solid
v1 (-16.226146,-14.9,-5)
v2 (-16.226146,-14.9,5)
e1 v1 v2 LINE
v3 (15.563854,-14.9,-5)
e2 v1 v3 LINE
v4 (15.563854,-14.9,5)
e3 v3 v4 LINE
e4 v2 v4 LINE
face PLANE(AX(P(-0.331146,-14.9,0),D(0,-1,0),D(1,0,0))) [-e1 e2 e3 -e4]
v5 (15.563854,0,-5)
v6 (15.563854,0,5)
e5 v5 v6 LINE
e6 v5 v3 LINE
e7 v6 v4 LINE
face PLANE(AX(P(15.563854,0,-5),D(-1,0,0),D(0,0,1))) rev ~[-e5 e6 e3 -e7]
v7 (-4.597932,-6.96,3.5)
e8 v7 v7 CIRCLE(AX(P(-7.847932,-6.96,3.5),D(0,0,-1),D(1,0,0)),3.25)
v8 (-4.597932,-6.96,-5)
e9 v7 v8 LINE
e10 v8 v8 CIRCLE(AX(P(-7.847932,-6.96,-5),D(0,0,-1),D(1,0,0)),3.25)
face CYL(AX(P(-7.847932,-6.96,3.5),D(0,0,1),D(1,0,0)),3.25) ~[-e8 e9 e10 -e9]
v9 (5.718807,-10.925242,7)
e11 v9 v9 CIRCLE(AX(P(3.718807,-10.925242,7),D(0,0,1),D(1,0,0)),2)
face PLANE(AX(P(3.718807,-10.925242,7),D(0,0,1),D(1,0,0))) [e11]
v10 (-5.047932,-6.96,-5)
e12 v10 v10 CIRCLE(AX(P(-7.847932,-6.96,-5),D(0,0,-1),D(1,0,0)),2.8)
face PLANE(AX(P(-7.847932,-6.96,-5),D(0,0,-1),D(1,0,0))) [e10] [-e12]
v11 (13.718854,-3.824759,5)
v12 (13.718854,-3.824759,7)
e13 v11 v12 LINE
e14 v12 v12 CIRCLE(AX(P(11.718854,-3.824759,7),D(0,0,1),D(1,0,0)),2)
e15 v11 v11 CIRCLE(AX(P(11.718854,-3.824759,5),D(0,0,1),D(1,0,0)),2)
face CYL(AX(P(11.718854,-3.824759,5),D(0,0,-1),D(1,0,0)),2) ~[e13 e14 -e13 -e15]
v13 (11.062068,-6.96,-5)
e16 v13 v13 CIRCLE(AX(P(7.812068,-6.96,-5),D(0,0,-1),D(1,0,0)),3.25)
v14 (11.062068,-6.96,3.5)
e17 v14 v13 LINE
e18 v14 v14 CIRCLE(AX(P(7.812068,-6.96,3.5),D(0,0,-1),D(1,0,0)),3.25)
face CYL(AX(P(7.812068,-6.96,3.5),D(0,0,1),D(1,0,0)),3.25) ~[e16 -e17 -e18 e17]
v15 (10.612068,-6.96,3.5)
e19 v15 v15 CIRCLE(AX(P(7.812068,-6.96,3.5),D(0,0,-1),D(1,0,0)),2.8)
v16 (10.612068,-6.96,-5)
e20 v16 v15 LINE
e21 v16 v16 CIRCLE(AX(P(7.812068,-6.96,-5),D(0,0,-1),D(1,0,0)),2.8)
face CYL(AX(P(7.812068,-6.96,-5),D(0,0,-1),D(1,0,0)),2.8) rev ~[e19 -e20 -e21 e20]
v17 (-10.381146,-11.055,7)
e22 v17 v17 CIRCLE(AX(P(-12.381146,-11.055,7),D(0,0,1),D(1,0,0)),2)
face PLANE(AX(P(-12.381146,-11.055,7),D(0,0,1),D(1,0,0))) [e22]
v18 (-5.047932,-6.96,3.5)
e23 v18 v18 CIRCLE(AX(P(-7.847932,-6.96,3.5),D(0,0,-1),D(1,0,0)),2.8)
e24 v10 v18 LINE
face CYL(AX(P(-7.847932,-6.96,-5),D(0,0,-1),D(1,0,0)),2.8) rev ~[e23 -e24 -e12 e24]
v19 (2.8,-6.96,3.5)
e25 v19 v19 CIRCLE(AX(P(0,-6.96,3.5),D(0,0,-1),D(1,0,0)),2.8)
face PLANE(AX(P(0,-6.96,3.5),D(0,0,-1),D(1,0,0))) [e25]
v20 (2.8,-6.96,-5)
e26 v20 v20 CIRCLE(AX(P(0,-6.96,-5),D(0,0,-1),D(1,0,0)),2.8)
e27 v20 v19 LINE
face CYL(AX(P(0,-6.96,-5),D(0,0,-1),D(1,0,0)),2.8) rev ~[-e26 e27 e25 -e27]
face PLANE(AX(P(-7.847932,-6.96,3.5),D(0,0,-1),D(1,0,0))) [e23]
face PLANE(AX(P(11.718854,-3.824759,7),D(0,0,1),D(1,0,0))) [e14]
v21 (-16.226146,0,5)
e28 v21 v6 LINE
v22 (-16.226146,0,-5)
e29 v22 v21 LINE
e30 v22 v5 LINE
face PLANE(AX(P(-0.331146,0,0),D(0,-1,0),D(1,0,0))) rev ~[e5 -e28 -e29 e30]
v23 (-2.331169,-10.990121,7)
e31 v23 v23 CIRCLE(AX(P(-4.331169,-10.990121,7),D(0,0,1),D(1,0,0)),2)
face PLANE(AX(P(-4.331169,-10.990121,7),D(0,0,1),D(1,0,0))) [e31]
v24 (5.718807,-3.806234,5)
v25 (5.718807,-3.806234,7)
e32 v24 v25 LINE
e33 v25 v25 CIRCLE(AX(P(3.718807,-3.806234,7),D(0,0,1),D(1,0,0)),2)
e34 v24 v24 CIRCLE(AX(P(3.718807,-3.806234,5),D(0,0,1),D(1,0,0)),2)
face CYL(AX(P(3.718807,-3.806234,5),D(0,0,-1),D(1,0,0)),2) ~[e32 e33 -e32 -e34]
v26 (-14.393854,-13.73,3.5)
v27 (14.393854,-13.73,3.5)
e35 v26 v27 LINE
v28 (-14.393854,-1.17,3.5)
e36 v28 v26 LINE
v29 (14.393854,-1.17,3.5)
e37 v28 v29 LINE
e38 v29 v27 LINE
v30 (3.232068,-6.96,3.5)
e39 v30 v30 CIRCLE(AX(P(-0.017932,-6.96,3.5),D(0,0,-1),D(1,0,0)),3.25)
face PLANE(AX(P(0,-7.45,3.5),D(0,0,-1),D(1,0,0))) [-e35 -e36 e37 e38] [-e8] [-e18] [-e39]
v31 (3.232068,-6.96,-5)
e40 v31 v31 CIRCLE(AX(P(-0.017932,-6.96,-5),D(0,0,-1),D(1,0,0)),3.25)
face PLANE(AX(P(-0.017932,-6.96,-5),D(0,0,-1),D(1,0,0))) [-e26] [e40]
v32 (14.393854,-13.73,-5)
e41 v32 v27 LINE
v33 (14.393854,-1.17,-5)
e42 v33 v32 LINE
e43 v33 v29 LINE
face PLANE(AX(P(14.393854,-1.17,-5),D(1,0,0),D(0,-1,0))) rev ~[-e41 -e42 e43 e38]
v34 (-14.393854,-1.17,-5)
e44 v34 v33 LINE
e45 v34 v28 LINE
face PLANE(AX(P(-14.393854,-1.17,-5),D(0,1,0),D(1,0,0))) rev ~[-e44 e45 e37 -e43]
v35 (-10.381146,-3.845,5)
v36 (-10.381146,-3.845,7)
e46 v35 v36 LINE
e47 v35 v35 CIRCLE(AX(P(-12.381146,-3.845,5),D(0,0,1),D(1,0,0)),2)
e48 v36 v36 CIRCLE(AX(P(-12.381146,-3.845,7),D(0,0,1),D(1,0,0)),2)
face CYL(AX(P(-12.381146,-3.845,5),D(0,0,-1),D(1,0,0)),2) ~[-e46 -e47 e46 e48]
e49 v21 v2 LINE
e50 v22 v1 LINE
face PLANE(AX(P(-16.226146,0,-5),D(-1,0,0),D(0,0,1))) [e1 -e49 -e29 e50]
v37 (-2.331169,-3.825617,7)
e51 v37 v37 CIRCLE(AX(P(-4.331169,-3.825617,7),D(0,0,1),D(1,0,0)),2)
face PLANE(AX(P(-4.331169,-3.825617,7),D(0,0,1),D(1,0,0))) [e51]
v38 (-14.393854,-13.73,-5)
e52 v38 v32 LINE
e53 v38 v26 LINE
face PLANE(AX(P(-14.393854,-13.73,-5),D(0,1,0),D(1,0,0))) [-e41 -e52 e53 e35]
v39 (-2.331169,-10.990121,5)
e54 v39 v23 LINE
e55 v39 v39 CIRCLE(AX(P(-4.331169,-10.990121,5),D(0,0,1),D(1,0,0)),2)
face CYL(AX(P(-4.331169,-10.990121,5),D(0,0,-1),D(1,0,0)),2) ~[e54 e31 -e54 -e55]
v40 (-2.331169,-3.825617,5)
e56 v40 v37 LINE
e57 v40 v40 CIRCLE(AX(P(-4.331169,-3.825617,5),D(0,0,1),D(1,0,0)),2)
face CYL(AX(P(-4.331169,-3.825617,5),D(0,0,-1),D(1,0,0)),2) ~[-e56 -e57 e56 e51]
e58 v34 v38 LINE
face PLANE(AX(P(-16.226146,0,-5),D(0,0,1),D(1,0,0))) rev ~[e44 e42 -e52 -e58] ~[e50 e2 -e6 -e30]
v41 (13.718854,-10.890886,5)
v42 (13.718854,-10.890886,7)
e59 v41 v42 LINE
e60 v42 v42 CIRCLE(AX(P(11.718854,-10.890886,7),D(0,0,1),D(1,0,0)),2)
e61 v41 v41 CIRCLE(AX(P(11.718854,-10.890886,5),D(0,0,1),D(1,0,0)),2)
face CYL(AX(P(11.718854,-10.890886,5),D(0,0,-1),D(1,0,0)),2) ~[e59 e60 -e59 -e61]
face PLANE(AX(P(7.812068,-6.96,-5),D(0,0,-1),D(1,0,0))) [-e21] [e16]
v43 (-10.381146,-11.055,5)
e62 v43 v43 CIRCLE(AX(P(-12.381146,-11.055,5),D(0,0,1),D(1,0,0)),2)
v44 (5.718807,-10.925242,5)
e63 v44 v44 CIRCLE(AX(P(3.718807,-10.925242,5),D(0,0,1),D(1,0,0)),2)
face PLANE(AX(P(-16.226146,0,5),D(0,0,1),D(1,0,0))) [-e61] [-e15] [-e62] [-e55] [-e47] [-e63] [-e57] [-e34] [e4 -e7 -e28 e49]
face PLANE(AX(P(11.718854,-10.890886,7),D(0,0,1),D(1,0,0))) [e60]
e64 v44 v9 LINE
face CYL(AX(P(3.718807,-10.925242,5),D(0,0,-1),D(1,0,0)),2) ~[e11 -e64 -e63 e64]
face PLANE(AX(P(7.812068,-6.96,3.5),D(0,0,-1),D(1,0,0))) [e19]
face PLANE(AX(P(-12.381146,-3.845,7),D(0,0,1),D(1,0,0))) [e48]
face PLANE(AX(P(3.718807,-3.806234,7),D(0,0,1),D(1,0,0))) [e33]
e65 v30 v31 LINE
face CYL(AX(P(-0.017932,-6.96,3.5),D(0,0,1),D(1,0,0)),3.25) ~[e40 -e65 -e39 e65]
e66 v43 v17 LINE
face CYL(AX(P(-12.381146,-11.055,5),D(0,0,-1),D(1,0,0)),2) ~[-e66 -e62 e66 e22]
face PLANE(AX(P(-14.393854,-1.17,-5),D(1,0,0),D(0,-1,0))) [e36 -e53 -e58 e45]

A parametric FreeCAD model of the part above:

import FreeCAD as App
import Part
import Sketcher
from FreeCAD import Vector


def add_polygon(sketch, points):
    """Adds a closed chain of lines whose ends are joined by coincident constraints."""
    first, n = sketch.GeometryCount, len(points)
    for a, b in zip(points, points[1:] + points[:1]):
        sketch.addGeometry(Part.LineSegment(App.Vector(*a, 0), App.Vector(*b, 0)), False)
    for i in range(n):
        sketch.addConstraint(Sketcher.Constraint("Coincident", first + i, 2, first + (i + 1) % n, 1))

doc = App.newDocument("Part")
params = doc.addObject("Spreadsheet::Sheet", "Params")
for row, (alias, value) in enumerate([
    ("sketch1_height", "10 mm"),
    ("sketch1_width", "31.79 mm"),
    ("pad1_length", "14.9 mm"),
    ("sketch2_height", "12.56 mm"),
    ("pocket1_length", "8.5 mm"),
    ("sketch3_diameter", "4 mm"),
    ("pad2_length", "2 mm"),
    ("sketch4_diameter", "6.5 mm"),
    ("pad3_length", "8.5 mm"),
    ("sketch5_diameter", "5.6 mm"),
    ("pocket2_length", "8.5 mm"),
], start=1):
    params.set(f"A{row}", alias)
    params.set(f"B{row}", "=" + value)
    params.setAlias(f"B{row}", alias)

body = doc.addObject("PartDesign::Body", "Body")

sketch1 = body.newObject("Sketcher::SketchObject", "Sketch")
sketch1.AttachmentSupport = (doc.getObject("XZ_Plane"), [""])
sketch1.MapMode = "FlatFace"
add_polygon(sketch1, [(-16, 5), (-16, -5), (16, -5), (16, 5)])
sketch1.addConstraint(Sketcher.Constraint("Vertical", 0))
sketch1.addConstraint(Sketcher.Constraint("Horizontal", 1))
sketch1.addConstraint(Sketcher.Constraint("Vertical", 2))
sketch1.addConstraint(Sketcher.Constraint("Horizontal", 3))
sketch1.addConstraint(Sketcher.Constraint("DistanceY", 0, 2, 0, 1, 10.0))
sketch1.addConstraint(Sketcher.Constraint("DistanceY", 0, 2, -1, 1, 5.0))
sketch1.addConstraint(Sketcher.Constraint("DistanceX", 1, 1, 1, 2, 31.79))
sketch1.addConstraint(Sketcher.Constraint("DistanceX", 0, 2, -1, 1, 16.226146))
sketch1.setExpression("Constraints[8]", "Params.sketch1_height")
sketch1.setExpression("Constraints[10]", "Params.sketch1_width")
pad1 = body.newObject("PartDesign::Pad", "Pad")
pad1.Profile = sketch1
pad1.setExpression("Length", "Params.pad1_length")

sketch2 = body.newObject("Sketcher::SketchObject", "Sketch001")
sketch2.AttachmentSupport = (doc.getObject("XY_Plane"), [""])
sketch2.MapMode = "FlatFace"
sketch2.AttachmentOffset = App.Placement(Vector(0, 0, -5), App.Rotation())
add_polygon(sketch2, [(-14, -14), (-14, -1), (14, -1), (14, -14)])
sketch2.addConstraint(Sketcher.Constraint("Vertical", 0))
sketch2.addConstraint(Sketcher.Constraint("Horizontal", 1))
sketch2.addConstraint(Sketcher.Constraint("Vertical", 2))
sketch2.addConstraint(Sketcher.Constraint("Horizontal", 3))
sketch2.addConstraint(Sketcher.Constraint("DistanceY", 0, 1, 0, 2, 12.56))
sketch2.addConstraint(Sketcher.Constraint("DistanceY", 0, 2, -1, 1, 1.17))
sketch2.addConstraint(Sketcher.Constraint("DistanceX", 1, 1, 1, 2, 28.787708))
sketch2.addConstraint(Sketcher.Constraint("DistanceX", 0, 2, -1, 1, 14.393854))
sketch2.setExpression("Constraints[8]", "Params.sketch2_height")
pocket1 = body.newObject("PartDesign::Pocket", "Pocket")
pocket1.Profile = sketch2
pocket1.setExpression("Length", "Params.pocket1_length")
pocket1.Reversed = True

sketch3 = body.newObject("Sketcher::SketchObject", "Sketch002")
sketch3.AttachmentSupport = (doc.getObject("XY_Plane"), [""])
sketch3.MapMode = "FlatFace"
sketch3.AttachmentOffset = App.Placement(Vector(0, 0, 5), App.Rotation())
sketch3.addGeometry(Part.Circle(Vector(-12.4, -3.8, 0), Vector(0, 0, 1), 2), False)
sketch3.addGeometry(Part.Circle(Vector(-4.3, -3.8, 0), Vector(0, 0, 1), 2), False)
sketch3.addGeometry(Part.Circle(Vector(3.7, -3.8, 0), Vector(0, 0, 1), 2), False)
sketch3.addGeometry(Part.Circle(Vector(11.7, -3.8, 0), Vector(0, 0, 1), 2), False)
sketch3.addGeometry(Part.Circle(Vector(-12.4, -11.1, 0), Vector(0, 0, 1), 2), False)
sketch3.addGeometry(Part.Circle(Vector(-4.3, -11, 0), Vector(0, 0, 1), 2), False)
sketch3.addGeometry(Part.Circle(Vector(3.7, -10.9, 0), Vector(0, 0, 1), 2), False)
sketch3.addGeometry(Part.Circle(Vector(11.7, -10.9, 0), Vector(0, 0, 1), 2), False)
sketch3.addConstraint(Sketcher.Constraint("Equal", 0, 1))
sketch3.addConstraint(Sketcher.Constraint("Equal", 1, 2))
sketch3.addConstraint(Sketcher.Constraint("Equal", 2, 3))
sketch3.addConstraint(Sketcher.Constraint("Equal", 3, 4))
sketch3.addConstraint(Sketcher.Constraint("Equal", 4, 5))
sketch3.addConstraint(Sketcher.Constraint("Equal", 5, 6))
sketch3.addConstraint(Sketcher.Constraint("Equal", 6, 7))
sketch3.addConstraint(Sketcher.Constraint("Vertical", 0, 3, 4, 3))
sketch3.addConstraint(Sketcher.Constraint("Vertical", 1, 3, 5, 3))
sketch3.addConstraint(Sketcher.Constraint("Vertical", 2, 3, 6, 3))
sketch3.addConstraint(Sketcher.Constraint("Vertical", 3, 3, 7, 3))
sketch3.addConstraint(Sketcher.Constraint("Diameter", 0, 4.0))
sketch3.addConstraint(Sketcher.Constraint("DistanceX", 0, 3, 3, 3, 24.1))
sketch3.addConstraint(Sketcher.Constraint("DistanceY", 4, 3, 0, 3, 7.21))
sketch3.addConstraint(Sketcher.Constraint("DistanceY", 0, 3, -1, 1, 3.845))
sketch3.addConstraint(Sketcher.Constraint("DistanceX", 1, 3, -1, 1, 4.331169))
sketch3.addConstraint(Sketcher.Constraint("DistanceY", 3, 3, -1, 1, 3.824759))
sketch3.addConstraint(Sketcher.Constraint("DistanceY", 5, 3, -1, 1, 10.990121))
sketch3.addConstraint(Sketcher.Constraint("DistanceY", 1, 3, 3, 3, 0.000858))
sketch3.addConstraint(Sketcher.Constraint("DistanceY", 6, 3, 2, 3, 7.119008))
sketch3.addConstraint(Sketcher.Constraint("DistanceY", 5, 3, 6, 3, 0.064879))
sketch3.addConstraint(Sketcher.Constraint("DistanceY", 7, 3, 1, 3, 7.065269))
sketch3.addConstraint(Sketcher.Constraint("DistanceX", 0, 3, -1, 1, 12.381146))
sketch3.addConstraint(Sketcher.Constraint("DistanceX", -1, 1, 2, 3, 3.718807))
sketch3.setExpression("Constraints[11]", "Params.sketch3_diameter")
pad2 = body.newObject("PartDesign::Pad", "Pad001")
pad2.Profile = sketch3
pad2.setExpression("Length", "Params.pad2_length")

sketch4 = body.newObject("Sketcher::SketchObject", "Sketch003")
sketch4.AttachmentSupport = (doc.getObject("XY_Plane"), [""])
sketch4.MapMode = "FlatFace"
sketch4.AttachmentOffset = App.Placement(Vector(0, 0, 3.5), App.Rotation())
sketch4.addGeometry(Part.Circle(Vector(0, -7, 0), Vector(0, 0, 1), 3.2), False)
sketch4.addGeometry(Part.Circle(Vector(-7.8, -7, 0), Vector(0, 0, 1), 3.2), False)
sketch4.addGeometry(Part.Circle(Vector(7.8, -7, 0), Vector(0, 0, 1), 3.2), False)
sketch4.addConstraint(Sketcher.Constraint("Equal", 0, 1))
sketch4.addConstraint(Sketcher.Constraint("Equal", 1, 2))
sketch4.addConstraint(Sketcher.Constraint("Horizontal", 0, 3, 1, 3))
sketch4.addConstraint(Sketcher.Constraint("Horizontal", 1, 3, 2, 3))
sketch4.addConstraint(Sketcher.Constraint("Diameter", 0, 6.5))
sketch4.addConstraint(Sketcher.Constraint("DistanceY", 0, 3, -1, 1, 6.96))
sketch4.addConstraint(Sketcher.Constraint("DistanceX", 1, 3, 0, 3, 7.83))
sketch4.addConstraint(Sketcher.Constraint("DistanceX", 0, 3, 2, 3, 7.83))
sketch4.addConstraint(Sketcher.Constraint("DistanceX", 0, 3, -1, 1, 0.017932))
sketch4.setExpression("Constraints[4]", "Params.sketch4_diameter")
pad3 = body.newObject("PartDesign::Pad", "Pad002")
pad3.Profile = sketch4
pad3.setExpression("Length", "Params.pad3_length")
pad3.Reversed = True

sketch5 = body.newObject("Sketcher::SketchObject", "Sketch004")
sketch5.AttachmentSupport = (doc.getObject("XY_Plane"), [""])
sketch5.MapMode = "FlatFace"
sketch5.AttachmentOffset = App.Placement(Vector(0, 0, -5), App.Rotation())
sketch5.addGeometry(Part.Circle(Vector(-7.8, -7, 0), Vector(0, 0, 1), 2.8), False)
sketch5.addGeometry(Part.Circle(Vector(0, -7, 0), Vector(0, 0, 1), 2.8), False)
sketch5.addGeometry(Part.Circle(Vector(7.8, -7, 0), Vector(0, 0, 1), 2.8), False)
sketch5.addConstraint(Sketcher.Constraint("Equal", 0, 1))
sketch5.addConstraint(Sketcher.Constraint("Equal", 1, 2))
sketch5.addConstraint(Sketcher.Constraint("PointOnObject", 1, 3, -2))
sketch5.addConstraint(Sketcher.Constraint("Horizontal", 0, 3, 1, 3))
sketch5.addConstraint(Sketcher.Constraint("Horizontal", 1, 3, 2, 3))
sketch5.addConstraint(Sketcher.Constraint("Diameter", 0, 5.6))
sketch5.addConstraint(Sketcher.Constraint("DistanceY", 0, 3, -1, 1, 6.96))
sketch5.addConstraint(Sketcher.Constraint("DistanceX", 0, 3, 2, 3, 15.66))
sketch5.addConstraint(Sketcher.Constraint("DistanceX", 0, 3, -1, 1, 7.847932))
sketch5.setExpression("Constraints[5]", "Params.sketch5_diameter")
pocket2 = body.newObject("PartDesign::Pocket", "Pocket001")
pocket2.Profile = sketch5
pocket2.setExpression("Length", "Params.pocket2_length")
pocket2.Reversed = True

doc.recompute()
